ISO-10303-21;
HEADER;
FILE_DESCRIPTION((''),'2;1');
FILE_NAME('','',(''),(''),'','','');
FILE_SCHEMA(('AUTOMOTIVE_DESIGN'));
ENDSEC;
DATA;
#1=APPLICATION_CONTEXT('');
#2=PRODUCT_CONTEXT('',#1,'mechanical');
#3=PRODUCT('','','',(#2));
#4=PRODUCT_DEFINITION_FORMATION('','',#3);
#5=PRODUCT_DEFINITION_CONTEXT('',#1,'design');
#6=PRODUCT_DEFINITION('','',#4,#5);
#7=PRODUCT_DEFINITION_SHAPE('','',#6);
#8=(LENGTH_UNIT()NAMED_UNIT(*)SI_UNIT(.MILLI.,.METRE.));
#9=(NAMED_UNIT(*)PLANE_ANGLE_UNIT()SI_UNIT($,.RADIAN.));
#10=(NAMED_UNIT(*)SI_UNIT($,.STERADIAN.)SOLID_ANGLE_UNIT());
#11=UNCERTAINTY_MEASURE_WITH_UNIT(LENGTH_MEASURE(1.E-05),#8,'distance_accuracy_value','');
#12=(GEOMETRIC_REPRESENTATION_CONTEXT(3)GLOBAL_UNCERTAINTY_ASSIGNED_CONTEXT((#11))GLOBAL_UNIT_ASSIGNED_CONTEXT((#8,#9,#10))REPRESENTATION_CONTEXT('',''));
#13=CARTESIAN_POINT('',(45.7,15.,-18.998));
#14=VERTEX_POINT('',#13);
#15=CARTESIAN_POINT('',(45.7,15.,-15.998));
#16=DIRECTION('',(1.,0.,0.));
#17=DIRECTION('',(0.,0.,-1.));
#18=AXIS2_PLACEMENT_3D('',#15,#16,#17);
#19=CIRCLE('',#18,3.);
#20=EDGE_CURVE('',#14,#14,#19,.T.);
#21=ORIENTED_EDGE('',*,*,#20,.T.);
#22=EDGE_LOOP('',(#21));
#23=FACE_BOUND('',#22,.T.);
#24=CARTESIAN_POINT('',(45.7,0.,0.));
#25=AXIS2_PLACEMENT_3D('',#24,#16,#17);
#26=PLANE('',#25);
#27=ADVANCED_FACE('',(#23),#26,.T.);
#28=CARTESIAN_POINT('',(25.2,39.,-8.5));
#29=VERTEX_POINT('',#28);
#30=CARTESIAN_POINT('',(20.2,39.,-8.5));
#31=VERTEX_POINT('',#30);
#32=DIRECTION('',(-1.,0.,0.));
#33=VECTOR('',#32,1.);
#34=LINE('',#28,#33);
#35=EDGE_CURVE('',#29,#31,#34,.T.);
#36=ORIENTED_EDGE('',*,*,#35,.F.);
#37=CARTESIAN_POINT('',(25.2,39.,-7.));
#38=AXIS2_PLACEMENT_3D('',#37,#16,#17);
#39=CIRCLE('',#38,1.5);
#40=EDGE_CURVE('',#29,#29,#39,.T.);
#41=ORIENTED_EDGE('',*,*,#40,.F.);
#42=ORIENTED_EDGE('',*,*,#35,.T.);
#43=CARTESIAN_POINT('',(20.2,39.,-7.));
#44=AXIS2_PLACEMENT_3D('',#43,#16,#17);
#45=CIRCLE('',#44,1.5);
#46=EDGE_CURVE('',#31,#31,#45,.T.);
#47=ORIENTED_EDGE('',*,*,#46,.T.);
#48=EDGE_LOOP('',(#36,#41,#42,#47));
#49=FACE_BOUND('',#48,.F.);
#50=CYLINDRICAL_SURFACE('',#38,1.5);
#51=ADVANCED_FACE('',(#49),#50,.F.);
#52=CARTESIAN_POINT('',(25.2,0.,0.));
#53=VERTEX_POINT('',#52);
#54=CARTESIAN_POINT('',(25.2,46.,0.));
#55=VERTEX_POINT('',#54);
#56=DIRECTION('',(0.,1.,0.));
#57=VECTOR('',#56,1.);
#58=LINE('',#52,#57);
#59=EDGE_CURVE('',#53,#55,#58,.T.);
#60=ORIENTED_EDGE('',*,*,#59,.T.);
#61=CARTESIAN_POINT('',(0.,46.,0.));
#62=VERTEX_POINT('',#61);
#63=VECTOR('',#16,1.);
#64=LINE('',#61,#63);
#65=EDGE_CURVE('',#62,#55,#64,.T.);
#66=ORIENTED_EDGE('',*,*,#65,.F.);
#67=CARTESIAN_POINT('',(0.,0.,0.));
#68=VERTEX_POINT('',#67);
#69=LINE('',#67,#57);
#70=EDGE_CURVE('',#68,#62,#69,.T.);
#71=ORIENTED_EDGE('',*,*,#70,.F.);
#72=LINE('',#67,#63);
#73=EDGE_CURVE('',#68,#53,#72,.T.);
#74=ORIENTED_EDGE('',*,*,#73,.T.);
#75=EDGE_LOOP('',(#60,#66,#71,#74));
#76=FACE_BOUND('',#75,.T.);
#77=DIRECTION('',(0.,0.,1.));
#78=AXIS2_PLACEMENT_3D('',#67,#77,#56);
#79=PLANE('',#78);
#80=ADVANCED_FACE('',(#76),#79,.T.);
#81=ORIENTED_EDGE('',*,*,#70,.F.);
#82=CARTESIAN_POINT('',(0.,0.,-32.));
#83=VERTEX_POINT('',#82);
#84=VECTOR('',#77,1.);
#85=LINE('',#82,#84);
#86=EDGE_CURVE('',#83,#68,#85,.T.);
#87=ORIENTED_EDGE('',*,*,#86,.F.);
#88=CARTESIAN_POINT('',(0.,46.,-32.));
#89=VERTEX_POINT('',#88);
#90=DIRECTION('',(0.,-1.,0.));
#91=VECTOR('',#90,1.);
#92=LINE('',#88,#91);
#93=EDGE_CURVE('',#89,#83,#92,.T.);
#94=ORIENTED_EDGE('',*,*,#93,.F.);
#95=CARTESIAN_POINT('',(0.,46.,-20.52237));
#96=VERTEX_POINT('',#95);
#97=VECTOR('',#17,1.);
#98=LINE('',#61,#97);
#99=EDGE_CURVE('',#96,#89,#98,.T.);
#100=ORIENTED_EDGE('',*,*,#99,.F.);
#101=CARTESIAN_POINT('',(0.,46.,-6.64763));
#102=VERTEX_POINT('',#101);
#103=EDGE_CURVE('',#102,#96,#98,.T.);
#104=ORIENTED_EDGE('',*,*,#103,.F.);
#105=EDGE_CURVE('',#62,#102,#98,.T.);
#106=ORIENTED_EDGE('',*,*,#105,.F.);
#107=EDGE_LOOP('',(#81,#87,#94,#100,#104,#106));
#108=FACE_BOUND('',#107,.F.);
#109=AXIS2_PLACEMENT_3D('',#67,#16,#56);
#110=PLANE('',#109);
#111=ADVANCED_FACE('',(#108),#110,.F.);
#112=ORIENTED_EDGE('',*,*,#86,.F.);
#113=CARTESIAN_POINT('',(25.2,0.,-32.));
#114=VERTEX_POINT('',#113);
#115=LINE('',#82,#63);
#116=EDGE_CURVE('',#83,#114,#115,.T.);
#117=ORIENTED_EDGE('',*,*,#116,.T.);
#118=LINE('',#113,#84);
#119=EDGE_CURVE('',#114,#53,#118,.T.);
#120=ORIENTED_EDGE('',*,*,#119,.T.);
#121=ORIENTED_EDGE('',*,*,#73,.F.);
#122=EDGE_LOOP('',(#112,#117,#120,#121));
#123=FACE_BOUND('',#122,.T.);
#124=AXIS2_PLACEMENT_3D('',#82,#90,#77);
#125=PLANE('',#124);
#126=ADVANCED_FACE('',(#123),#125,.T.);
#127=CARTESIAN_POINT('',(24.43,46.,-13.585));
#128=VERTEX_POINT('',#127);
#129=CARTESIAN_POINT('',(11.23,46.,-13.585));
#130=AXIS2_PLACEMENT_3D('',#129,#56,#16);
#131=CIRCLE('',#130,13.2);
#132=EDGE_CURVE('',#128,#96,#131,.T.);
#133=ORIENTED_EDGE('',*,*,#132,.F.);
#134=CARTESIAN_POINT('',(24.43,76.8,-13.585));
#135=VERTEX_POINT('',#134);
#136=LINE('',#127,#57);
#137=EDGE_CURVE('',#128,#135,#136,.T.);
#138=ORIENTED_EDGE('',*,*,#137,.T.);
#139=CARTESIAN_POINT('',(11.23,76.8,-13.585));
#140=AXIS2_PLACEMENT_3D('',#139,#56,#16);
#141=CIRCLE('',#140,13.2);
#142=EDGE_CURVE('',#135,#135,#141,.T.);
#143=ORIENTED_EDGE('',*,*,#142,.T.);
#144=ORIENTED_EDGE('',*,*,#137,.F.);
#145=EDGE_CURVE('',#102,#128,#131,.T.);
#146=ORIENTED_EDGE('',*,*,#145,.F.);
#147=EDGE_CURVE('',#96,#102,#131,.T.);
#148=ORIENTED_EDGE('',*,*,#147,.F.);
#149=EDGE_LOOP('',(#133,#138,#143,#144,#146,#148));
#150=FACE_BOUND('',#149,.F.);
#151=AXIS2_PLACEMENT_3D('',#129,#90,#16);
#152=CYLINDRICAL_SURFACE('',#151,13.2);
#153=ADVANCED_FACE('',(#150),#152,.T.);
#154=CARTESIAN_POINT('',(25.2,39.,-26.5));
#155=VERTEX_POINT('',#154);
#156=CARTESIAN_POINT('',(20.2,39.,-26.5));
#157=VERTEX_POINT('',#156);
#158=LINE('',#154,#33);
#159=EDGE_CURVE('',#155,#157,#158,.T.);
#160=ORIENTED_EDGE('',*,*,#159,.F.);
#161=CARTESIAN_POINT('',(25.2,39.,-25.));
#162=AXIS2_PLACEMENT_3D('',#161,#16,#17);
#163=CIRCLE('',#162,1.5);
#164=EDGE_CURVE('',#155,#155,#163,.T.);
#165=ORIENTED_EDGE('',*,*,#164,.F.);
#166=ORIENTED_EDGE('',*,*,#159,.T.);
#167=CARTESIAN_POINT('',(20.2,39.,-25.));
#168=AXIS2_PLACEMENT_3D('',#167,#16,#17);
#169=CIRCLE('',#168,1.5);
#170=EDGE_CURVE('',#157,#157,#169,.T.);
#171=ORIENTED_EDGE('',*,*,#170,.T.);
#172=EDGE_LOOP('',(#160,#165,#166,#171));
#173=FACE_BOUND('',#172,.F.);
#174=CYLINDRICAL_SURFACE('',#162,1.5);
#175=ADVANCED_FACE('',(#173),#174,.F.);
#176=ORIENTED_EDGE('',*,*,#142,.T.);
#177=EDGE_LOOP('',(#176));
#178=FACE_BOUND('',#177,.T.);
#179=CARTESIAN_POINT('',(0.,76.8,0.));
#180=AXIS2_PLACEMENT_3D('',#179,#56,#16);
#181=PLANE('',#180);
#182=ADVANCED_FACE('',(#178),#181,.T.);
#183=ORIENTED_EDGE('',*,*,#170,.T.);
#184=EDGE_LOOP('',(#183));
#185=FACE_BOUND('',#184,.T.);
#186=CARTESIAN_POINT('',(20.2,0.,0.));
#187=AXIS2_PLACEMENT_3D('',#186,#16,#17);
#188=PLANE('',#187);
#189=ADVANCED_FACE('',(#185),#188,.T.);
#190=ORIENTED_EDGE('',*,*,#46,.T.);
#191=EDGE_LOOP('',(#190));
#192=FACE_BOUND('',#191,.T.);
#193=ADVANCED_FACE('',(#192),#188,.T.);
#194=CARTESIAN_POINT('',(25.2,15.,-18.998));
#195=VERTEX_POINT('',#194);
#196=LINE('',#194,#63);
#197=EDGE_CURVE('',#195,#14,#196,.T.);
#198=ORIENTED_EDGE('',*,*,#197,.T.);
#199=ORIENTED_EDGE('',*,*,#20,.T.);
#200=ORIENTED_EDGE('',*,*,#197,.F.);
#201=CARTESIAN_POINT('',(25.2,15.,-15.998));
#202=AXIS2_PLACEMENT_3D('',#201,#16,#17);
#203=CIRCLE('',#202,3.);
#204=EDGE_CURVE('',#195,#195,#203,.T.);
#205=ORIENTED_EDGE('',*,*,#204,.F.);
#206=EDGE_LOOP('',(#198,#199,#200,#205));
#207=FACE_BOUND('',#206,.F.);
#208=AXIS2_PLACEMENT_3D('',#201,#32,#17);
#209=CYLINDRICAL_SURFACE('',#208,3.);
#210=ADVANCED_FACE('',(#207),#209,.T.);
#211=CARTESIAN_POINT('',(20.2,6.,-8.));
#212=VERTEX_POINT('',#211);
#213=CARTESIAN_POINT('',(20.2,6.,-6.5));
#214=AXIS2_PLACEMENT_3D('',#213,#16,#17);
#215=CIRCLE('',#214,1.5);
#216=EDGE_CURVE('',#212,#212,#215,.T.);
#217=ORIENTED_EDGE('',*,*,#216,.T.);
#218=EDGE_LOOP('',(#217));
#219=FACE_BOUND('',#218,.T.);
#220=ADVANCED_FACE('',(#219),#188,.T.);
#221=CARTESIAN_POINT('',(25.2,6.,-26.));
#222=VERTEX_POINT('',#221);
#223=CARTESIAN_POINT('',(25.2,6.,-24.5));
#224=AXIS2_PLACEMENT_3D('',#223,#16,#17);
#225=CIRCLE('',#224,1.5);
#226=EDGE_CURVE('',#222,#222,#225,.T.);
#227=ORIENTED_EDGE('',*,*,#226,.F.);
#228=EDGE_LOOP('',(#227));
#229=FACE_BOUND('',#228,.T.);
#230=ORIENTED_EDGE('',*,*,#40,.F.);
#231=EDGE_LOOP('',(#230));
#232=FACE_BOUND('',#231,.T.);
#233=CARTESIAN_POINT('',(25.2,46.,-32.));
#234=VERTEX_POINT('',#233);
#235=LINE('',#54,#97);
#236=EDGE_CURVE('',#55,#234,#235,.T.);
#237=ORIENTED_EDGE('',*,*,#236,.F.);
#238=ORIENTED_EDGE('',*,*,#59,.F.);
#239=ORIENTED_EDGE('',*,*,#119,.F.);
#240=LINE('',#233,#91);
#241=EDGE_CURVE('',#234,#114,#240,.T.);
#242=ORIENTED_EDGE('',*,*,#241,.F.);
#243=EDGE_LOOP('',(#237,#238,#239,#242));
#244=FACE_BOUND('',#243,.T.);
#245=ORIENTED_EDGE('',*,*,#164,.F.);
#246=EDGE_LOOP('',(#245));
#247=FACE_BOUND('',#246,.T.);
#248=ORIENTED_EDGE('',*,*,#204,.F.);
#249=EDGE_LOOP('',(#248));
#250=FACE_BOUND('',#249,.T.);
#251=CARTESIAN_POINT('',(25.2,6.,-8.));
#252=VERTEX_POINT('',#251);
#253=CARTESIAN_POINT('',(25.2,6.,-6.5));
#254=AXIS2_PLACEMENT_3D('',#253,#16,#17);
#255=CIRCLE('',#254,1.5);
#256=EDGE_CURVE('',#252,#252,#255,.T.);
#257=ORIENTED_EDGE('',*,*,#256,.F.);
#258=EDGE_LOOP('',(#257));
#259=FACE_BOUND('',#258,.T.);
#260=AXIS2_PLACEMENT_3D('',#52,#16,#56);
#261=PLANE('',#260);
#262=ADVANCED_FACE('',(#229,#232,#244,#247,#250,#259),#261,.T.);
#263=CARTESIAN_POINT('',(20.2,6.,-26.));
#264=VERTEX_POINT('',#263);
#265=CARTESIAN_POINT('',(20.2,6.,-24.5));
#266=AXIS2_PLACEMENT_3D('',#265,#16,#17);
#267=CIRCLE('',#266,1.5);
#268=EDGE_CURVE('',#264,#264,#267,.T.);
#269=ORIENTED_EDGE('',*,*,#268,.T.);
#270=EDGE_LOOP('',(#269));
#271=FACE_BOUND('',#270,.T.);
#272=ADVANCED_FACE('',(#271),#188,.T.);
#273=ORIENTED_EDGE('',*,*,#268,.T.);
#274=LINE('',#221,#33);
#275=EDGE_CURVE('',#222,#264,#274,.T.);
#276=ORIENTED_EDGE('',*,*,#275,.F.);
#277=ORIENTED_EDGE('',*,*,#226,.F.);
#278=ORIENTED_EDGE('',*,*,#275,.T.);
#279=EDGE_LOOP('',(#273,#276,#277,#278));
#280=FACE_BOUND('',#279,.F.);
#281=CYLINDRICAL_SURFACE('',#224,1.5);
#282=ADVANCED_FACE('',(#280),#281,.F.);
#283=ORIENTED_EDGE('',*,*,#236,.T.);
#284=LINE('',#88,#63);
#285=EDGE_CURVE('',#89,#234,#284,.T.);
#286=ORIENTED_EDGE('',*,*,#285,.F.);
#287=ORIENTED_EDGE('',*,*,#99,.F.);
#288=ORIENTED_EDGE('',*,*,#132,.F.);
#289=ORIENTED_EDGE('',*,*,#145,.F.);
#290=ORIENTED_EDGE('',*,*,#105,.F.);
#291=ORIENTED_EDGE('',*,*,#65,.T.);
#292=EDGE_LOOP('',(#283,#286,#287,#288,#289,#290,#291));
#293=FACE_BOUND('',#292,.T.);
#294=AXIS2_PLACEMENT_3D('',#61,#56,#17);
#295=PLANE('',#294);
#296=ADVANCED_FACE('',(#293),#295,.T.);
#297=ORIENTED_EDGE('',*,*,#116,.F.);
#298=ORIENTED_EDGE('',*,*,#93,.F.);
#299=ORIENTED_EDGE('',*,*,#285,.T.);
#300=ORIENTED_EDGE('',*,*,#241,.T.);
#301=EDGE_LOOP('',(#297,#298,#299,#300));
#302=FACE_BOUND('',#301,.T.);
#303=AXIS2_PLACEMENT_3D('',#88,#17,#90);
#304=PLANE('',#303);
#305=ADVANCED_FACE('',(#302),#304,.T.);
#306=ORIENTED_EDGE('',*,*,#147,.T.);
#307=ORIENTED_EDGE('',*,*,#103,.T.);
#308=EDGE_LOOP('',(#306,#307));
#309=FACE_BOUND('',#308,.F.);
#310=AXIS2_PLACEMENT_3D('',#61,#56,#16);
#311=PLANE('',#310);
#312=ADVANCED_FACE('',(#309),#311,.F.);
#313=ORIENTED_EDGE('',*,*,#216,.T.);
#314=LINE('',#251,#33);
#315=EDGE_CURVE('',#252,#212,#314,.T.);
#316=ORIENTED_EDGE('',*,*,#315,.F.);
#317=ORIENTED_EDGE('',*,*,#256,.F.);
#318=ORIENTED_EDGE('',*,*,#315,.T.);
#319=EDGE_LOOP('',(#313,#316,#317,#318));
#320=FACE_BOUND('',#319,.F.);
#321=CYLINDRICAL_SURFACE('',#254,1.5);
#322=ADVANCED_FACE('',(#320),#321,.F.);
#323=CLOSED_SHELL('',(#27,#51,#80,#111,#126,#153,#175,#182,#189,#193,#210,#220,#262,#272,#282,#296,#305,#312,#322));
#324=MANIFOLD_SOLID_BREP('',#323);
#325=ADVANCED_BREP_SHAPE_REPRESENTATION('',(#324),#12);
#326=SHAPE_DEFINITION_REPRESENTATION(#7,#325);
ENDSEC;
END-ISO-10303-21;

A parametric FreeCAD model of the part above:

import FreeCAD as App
import Part
import Sketcher
from FreeCAD import Vector


def add_polygon(sketch, points):
    """Adds a closed chain of lines whose ends are joined by coincident constraints."""
    first, n = sketch.GeometryCount, len(points)
    for a, b in zip(points, points[1:] + points[:1]):
        sketch.addGeometry(Part.LineSegment(App.Vector(*a, 0), App.Vector(*b, 0)), False)
    for i in range(n):
        sketch.addConstraint(Sketcher.Constraint("Coincident", first + i, 2, first + (i + 1) % n, 1))

doc = App.newDocument("Part")
body = doc.addObject("PartDesign::Body", "Body")

# Sketch on YZ plane
sketch1 = body.newObject("Sketcher::SketchObject", "Sketch")
sketch1.AttachmentSupport = (doc.getObject("YZ_Plane"), [""])
sketch1.MapMode = "FlatFace"
add_polygon(sketch1, [(46, 0), (0, 0), (0, -32), (46, -32)])  # lines 0-3
sketch1.addConstraint([
    Sketcher.Constraint("Horizontal", 0),
    Sketcher.Constraint("Vertical", 1),
    Sketcher.Constraint("Horizontal", 2),
    Sketcher.Constraint("Vertical", 3),
    Sketcher.Constraint("Coincident", 0, 2, -1, 1),
    Sketcher.Constraint("DistanceX", 0, 2, 0, 1, 46.0),
    Sketcher.Constraint("DistanceY", 1, 2, 1, 1, 32.0),
])
pad1 = body.newObject("PartDesign::Pad", "Pad")
pad1.Profile = sketch1
pad1.Length = 25.2

# Sketch on XZ plane
sketch2 = body.newObject("Sketcher::SketchObject", "Sketch001")
sketch2.AttachmentSupport = (doc.getObject("XZ_Plane"), [""])
sketch2.MapMode = "FlatFace"
sketch2.AttachmentOffset = App.Placement(Vector(0, 0, -46), App.Rotation())
sketch2.addGeometry(Part.Circle(Vector(11, -14, 0), Vector(0, 0, 1), 13), False)
sketch2.addConstraint([
    Sketcher.Constraint("Diameter", 0, 26.4),
    Sketcher.Constraint("DistanceX", -1, 1, 0, 3, 11.23),
    Sketcher.Constraint("DistanceY", 0, 3, -1, 1, 13.585),
])
pad2 = body.newObject("PartDesign::Pad", "Pad001")
pad2.Profile = sketch2
pad2.Length = 30.8
pad2.Reversed = True

# Sketch on YZ plane
sketch3 = body.newObject("Sketcher::SketchObject", "Sketch002")
sketch3.AttachmentSupport = (doc.getObject("YZ_Plane"), [""])
sketch3.MapMode = "FlatFace"
sketch3.AttachmentOffset = App.Placement(Vector(0, 0, 25.2), App.Rotation())
sketch3.addGeometry([
    Part.Circle(Vector(39, -7, 0), Vector(0, 0, 1), 1.5),
    Part.Circle(Vector(39, -25, 0), Vector(0, 0, 1), 1.5),
    Part.Circle(Vector(6, -6.5, 0), Vector(0, 0, 1), 1.5),
    Part.Circle(Vector(6, -24.5, 0), Vector(0, 0, 1), 1.5),
], False)
sketch3.addConstraint([
    Sketcher.Constraint("Equal", 0, 1),
    Sketcher.Constraint("Equal", 1, 2),
    Sketcher.Constraint("Equal", 2, 3),
    Sketcher.Constraint("Vertical", 0, 3, 1, 3),
    Sketcher.Constraint("Vertical", 2, 3, 3, 3),
    Sketcher.Constraint("Diameter", 0, 3.0),
    Sketcher.Constraint("DistanceY", 0, 3, -1, 1, 7.0),
    Sketcher.Constraint("DistanceY", 1, 3, 0, 3, 18.0),
    Sketcher.Constraint("DistanceX", 2, 3, 0, 3, 33.0),
    Sketcher.Constraint("DistanceY", 3, 3, 2, 3, 18.0),
    Sketcher.Constraint("DistanceX", -1, 1, 0, 3, 39.0),
    Sketcher.Constraint("DistanceY", 2, 3, -1, 1, 6.5),
])
pocket1 = body.newObject("PartDesign::Pocket", "Pocket")
pocket1.Profile = sketch3
pocket1.Length = 5

# Sketch on YZ plane
sketch4 = body.newObject("Sketcher::SketchObject", "Sketch003")
sketch4.AttachmentSupport = (doc.getObject("YZ_Plane"), [""])
sketch4.MapMode = "FlatFace"
sketch4.AttachmentOffset = App.Placement(Vector(0, 0, 25.2), App.Rotation())
sketch4.addGeometry(Part.Circle(Vector(15, -16, 0), Vector(0, 0, 1), 3), False)
sketch4.addConstraint([
    Sketcher.Constraint("Diameter", 0, 6.0),
    Sketcher.Constraint("DistanceX", -1, 1, 0, 3, 15.0),
    Sketcher.Constraint("DistanceY", 0, 3, -1, 1, 15.998),
])
pad3 = body.newObject("PartDesign::Pad", "Pad002")
pad3.Profile = sketch4
pad3.Length = 20.5

doc.recompute()
